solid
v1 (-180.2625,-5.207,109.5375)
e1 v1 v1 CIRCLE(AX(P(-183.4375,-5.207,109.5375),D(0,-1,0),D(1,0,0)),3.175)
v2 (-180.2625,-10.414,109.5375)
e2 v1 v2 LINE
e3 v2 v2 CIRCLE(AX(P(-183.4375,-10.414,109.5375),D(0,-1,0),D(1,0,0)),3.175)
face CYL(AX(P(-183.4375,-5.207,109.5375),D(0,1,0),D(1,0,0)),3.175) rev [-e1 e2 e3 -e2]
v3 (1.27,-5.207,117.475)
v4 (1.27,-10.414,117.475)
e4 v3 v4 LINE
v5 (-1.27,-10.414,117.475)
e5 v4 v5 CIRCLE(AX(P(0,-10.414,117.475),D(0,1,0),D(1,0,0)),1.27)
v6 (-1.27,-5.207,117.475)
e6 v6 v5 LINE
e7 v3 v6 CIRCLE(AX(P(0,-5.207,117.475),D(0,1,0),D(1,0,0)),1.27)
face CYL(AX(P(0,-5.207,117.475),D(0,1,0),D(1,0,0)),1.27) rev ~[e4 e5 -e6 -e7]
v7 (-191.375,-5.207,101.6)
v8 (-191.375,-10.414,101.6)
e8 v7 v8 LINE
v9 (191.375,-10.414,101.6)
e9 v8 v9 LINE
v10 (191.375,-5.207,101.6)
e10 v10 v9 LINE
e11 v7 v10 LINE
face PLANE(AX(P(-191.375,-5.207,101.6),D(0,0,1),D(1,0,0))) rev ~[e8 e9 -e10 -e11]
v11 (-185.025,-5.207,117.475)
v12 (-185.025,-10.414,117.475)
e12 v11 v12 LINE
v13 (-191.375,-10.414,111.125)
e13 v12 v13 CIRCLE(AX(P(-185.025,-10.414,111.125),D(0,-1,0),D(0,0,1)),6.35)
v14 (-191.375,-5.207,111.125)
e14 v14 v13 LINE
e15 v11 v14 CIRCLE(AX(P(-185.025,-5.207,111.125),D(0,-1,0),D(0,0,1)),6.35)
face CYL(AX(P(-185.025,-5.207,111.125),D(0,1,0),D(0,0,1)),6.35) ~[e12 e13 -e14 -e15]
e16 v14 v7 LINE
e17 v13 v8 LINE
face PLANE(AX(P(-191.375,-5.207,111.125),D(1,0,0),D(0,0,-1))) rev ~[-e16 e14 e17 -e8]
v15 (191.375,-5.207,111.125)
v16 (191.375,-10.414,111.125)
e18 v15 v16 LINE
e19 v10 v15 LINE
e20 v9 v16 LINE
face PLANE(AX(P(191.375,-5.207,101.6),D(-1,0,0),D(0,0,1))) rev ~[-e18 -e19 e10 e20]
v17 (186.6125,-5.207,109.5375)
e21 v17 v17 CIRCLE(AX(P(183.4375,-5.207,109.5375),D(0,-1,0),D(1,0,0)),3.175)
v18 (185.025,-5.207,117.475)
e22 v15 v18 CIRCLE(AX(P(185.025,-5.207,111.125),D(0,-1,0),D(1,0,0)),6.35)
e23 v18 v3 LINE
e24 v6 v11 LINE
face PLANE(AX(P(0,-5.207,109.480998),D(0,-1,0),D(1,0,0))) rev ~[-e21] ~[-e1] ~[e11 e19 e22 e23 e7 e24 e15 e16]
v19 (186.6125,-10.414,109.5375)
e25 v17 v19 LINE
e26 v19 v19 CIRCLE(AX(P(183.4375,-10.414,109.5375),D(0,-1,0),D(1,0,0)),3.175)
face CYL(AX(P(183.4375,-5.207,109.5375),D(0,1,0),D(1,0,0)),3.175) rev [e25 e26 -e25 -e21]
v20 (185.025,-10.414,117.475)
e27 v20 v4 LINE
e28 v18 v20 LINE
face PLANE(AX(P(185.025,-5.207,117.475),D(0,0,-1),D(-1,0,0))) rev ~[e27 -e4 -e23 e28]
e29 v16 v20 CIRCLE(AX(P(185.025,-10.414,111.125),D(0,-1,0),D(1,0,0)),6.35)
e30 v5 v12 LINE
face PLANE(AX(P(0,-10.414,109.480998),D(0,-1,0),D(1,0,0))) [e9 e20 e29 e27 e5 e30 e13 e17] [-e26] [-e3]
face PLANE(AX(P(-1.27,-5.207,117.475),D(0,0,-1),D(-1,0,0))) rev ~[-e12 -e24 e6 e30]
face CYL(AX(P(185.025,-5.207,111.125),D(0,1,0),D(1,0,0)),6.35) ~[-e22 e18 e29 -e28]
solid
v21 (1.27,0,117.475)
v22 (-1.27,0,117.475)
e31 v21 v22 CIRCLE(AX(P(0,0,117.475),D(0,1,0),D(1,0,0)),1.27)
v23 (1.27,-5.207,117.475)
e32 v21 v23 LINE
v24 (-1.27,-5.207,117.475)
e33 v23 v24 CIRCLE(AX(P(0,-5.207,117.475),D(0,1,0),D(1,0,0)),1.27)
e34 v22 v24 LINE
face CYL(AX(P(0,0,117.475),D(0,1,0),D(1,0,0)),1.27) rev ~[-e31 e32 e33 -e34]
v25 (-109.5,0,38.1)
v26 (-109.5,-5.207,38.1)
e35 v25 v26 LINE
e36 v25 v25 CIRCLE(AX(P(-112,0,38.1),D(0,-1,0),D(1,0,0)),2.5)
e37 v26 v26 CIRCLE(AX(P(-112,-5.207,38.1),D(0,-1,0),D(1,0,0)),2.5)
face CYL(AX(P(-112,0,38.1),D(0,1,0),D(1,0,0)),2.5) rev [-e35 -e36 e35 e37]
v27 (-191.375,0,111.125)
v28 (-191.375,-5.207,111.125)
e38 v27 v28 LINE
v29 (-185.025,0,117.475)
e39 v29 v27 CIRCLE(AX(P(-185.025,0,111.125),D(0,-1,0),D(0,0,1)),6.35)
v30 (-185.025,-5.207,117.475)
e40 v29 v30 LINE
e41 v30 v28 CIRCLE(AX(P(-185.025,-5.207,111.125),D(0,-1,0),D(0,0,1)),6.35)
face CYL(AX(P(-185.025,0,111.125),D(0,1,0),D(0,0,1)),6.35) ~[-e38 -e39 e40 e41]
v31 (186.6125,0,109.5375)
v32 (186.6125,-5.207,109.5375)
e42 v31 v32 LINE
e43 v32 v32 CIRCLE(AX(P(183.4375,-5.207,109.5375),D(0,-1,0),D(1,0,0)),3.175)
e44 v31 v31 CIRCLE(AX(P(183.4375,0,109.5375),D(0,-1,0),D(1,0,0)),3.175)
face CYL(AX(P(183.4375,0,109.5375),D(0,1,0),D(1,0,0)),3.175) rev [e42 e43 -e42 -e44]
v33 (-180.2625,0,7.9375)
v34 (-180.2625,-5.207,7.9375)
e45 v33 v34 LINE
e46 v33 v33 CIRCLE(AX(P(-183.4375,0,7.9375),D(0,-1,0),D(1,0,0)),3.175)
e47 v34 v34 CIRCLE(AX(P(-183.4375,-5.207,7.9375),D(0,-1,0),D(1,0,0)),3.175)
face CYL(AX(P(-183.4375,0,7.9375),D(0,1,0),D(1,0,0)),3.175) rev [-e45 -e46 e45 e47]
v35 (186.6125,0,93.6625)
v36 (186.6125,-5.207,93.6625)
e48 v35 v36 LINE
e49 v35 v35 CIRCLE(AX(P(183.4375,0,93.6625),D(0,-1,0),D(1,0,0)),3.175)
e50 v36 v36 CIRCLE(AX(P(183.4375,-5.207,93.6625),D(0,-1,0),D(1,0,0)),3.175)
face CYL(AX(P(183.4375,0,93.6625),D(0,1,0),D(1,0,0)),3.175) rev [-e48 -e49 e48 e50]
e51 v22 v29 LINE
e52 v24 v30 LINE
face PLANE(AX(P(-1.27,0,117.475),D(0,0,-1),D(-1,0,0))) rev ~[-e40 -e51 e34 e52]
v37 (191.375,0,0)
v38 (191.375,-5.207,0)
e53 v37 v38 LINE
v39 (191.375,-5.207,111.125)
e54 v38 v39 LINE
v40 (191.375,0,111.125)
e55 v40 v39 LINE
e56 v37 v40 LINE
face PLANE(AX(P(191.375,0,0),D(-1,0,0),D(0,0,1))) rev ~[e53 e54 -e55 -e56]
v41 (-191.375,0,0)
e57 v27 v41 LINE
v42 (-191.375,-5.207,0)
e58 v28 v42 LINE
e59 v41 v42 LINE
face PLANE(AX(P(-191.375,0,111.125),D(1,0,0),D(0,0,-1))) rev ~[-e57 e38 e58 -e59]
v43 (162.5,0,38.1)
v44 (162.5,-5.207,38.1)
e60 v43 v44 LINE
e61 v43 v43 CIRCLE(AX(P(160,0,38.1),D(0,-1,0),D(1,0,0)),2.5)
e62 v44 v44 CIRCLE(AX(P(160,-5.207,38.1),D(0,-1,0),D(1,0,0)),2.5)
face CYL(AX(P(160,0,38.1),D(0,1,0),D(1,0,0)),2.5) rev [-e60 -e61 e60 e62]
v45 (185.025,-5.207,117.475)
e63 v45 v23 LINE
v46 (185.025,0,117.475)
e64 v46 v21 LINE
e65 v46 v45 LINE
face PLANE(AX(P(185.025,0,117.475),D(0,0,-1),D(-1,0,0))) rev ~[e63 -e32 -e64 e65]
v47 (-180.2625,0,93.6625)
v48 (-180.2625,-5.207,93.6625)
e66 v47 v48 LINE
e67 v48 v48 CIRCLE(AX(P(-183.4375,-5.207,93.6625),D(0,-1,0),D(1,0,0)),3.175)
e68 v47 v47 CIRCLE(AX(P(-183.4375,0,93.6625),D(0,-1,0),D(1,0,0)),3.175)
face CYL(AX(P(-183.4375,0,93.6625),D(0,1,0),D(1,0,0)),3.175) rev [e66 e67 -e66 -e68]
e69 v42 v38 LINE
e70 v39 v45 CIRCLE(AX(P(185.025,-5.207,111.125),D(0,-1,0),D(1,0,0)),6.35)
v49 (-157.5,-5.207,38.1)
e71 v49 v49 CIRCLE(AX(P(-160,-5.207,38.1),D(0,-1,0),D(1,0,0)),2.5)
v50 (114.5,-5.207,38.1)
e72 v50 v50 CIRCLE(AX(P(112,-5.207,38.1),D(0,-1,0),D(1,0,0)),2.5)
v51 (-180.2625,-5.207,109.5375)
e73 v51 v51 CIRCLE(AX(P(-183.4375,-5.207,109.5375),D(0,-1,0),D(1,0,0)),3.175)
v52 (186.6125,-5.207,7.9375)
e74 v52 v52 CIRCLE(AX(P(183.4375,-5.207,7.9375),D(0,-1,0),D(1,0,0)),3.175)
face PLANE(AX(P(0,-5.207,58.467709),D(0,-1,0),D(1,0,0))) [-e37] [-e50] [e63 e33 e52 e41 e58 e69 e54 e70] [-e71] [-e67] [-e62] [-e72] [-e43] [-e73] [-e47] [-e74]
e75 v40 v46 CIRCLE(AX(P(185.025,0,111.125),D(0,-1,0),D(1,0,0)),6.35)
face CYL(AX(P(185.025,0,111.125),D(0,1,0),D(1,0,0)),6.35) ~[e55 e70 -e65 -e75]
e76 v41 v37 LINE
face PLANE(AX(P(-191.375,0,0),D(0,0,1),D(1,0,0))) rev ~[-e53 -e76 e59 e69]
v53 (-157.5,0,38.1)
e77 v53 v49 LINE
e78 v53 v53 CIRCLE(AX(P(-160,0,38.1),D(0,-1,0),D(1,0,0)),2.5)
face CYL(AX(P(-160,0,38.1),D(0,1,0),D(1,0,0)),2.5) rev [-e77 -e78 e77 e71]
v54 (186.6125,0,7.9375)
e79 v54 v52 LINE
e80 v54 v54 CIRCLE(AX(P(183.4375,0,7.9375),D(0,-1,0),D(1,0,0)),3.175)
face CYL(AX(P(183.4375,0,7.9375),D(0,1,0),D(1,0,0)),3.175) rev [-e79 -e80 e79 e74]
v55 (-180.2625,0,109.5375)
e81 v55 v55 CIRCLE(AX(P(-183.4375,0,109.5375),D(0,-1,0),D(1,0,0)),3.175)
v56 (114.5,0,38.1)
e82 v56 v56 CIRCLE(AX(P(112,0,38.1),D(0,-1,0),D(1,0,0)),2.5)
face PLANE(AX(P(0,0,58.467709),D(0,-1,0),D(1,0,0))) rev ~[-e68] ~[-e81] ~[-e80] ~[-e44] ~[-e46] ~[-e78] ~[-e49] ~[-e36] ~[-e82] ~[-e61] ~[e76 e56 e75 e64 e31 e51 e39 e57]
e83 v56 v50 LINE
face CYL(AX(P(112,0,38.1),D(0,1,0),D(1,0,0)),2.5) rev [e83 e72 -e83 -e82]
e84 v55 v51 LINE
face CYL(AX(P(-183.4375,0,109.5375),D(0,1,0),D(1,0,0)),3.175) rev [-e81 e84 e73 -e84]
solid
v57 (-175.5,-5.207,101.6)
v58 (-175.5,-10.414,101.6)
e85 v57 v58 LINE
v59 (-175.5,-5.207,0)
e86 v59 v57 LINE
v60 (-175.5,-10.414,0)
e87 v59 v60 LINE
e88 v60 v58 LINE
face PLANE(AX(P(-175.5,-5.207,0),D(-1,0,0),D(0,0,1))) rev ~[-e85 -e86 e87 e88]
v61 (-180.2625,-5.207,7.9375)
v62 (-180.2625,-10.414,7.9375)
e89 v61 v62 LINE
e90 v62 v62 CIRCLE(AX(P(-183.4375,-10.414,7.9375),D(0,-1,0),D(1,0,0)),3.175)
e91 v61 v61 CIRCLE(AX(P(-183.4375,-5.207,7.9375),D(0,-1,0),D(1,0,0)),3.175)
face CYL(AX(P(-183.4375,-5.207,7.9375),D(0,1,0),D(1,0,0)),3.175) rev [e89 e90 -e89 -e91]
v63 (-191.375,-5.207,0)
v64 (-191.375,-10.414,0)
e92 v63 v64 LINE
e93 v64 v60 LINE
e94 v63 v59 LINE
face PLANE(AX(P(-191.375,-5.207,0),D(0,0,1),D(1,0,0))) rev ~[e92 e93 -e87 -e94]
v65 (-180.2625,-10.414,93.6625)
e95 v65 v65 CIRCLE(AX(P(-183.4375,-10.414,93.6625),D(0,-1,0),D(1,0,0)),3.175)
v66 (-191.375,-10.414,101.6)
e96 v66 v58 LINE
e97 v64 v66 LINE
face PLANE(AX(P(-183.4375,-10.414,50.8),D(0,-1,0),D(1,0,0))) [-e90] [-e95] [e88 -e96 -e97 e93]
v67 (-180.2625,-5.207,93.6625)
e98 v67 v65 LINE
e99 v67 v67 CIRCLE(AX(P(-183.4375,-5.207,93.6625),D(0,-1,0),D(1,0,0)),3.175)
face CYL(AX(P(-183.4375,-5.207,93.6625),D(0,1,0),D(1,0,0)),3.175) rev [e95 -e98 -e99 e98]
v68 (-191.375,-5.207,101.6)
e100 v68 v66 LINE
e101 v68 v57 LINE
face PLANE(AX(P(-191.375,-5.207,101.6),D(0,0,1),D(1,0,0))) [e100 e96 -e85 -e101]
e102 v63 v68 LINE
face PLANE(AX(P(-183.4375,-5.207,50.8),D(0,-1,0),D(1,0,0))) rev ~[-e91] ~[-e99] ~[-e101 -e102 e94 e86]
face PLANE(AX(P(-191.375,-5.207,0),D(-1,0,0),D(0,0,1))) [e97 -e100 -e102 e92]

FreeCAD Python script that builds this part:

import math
import FreeCAD as App
import Part
import Sketcher
Q = App.Units.Quantity

doc = App.newDocument("Part")
body = doc.addObject("PartDesign::Body", "Body")

# Sketch on XZ plane
sketch1 = body.newObject("Sketcher::SketchObject", "Sketch")
sketch1.AttachmentSupport = (doc.getObject("XZ_Plane"), [""])
sketch1.MapMode = "FlatFace"
sketch1.addGeometry([
    Part.LineSegment(App.Vector(-1.3, 117.5, 0), App.Vector(-185, 117.5, 0)),  # 0
    Part.ArcOfCircle(Part.Circle(App.Vector(-185, 111.1, 0), App.Vector(0, 0, 1), 6.3), math.radians(90), math.radians(180)),  # 1
    Part.LineSegment(App.Vector(-191.4, 111.1, 0), App.Vector(-191.4, 0, 0)),  # 2
    Part.LineSegment(App.Vector(-191.4, 0, 0), App.Vector(191.4, 0, 0)),  # 3
    Part.LineSegment(App.Vector(191.4, 0, 0), App.Vector(191.4, 111.1, 0)),  # 4
    Part.ArcOfCircle(Part.Circle(App.Vector(185, 111.1, 0), App.Vector(0, 0, 1), 6.3), math.radians(0), math.radians(90)),  # 5
    Part.LineSegment(App.Vector(185, 117.5, 0), App.Vector(1.3, 117.5, 0)),  # 6
    Part.ArcOfCircle(Part.Circle(App.Vector(0, 117.5, 0), App.Vector(0, 0, 1), 1.3), math.radians(180), math.radians(360)),  # 7
    Part.Circle(App.Vector(-183.4, 7.9, 0), App.Vector(0, 0, 1), 3.2),  # 8
    Part.Circle(App.Vector(-160, 38.1, 0), App.Vector(0, 0, 1), 2.5),  # 9
    Part.Circle(App.Vector(-112, 38.1, 0), App.Vector(0, 0, 1), 2.5),  # 10
    Part.Circle(App.Vector(183.4, 7.9, 0), App.Vector(0, 0, 1), 3.2),  # 11
    Part.Circle(App.Vector(112, 38.1, 0), App.Vector(0, 0, 1), 2.5),  # 12
    Part.Circle(App.Vector(160, 38.1, 0), App.Vector(0, 0, 1), 2.5),  # 13
    Part.Circle(App.Vector(-183.4, 93.7, 0), App.Vector(0, 0, 1), 3.2),  # 14
    Part.Circle(App.Vector(-183.4, 109.5, 0), App.Vector(0, 0, 1), 3.2),  # 15
    Part.Circle(App.Vector(183.4, 93.7, 0), App.Vector(0, 0, 1), 3.2),  # 16
    Part.Circle(App.Vector(183.4, 109.5, 0), App.Vector(0, 0, 1), 3.2),  # 17
], False)
sketch1.addConstraint([
    Sketcher.Constraint("Tangent", 0, 2, 1, 1),
    Sketcher.Constraint("Tangent", 1, 2, 2, 1),
    Sketcher.Constraint("Coincident", 2, 2, 3, 1),
    Sketcher.Constraint("Coincident", 3, 2, 4, 1),
    Sketcher.Constraint("Tangent", 4, 2, 5, 1),
    Sketcher.Constraint("Tangent", 5, 2, 6, 1),
    Sketcher.Constraint("Coincident", 6, 2, 7, 2),
    Sketcher.Constraint("Coincident", 7, 1, 0, 1),
    Sketcher.Constraint("Horizontal", 0),
    Sketcher.Constraint("Vertical", 2),
    Sketcher.Constraint("Horizontal", 3),
    Sketcher.Constraint("Vertical", 4),
    Sketcher.Constraint("Horizontal", 6),
    Sketcher.Constraint("Equal", 1, 5),
    Sketcher.Constraint("Equal", 9, 10),
    Sketcher.Constraint("Equal", 8, 11),
    Sketcher.Constraint("Equal", 10, 12),
    Sketcher.Constraint("Equal", 12, 13),
    Sketcher.Constraint("Equal", 11, 14),
    Sketcher.Constraint("Equal", 14, 15),
    Sketcher.Constraint("Equal", 15, 16),
    Sketcher.Constraint("Equal", 16, 17),
    Sketcher.Constraint("Symmetric", 2, 2, 3, 2, -1, 1),
    Sketcher.Constraint("Symmetric", 8, 3, 11, 3, -2),
    Sketcher.Constraint("Symmetric", 10, 3, 12, 3, -2),
    Sketcher.Constraint("Symmetric", 9, 3, 13, 3, -2),
    Sketcher.Constraint("Symmetric", 14, 3, 16, 3, -2),
    Sketcher.Constraint("Symmetric", 15, 3, 17, 3, -2),
    Sketcher.Constraint("Symmetric", 6, 2, 7, 1, -2),
    Sketcher.Constraint("Horizontal", 9, 3, 10, 3),
    Sketcher.Constraint("Horizontal", 7, 3, 0, 2),
    Sketcher.Constraint("Vertical", 8, 3, 14, 3),
    Sketcher.Constraint("Vertical", 14, 3, 15, 3),
    Sketcher.Constraint("Diameter", 8, Q("0.25 in")),
    Sketcher.Constraint("Radius", 1, Q("0.25 in")),
    Sketcher.Constraint("Radius", 7, Q("0.05 in")),
    Sketcher.Constraint("DistanceY", 8, 3, 15, 3, Q("4 in")),
    Sketcher.Constraint("DistanceY", -1, 1, 9, 3, Q("1.5 in")),
    Sketcher.Constraint("Diameter", 9, 5.0),
    Sketcher.Constraint("DistanceY", 2, 2, 2, 1, Q("4.375 in")),
    Sketcher.Constraint("DistanceY", -1, 1, 8, 3, Q("0.3125 in")),
    Sketcher.Constraint("DistanceY", -1, 1, 14, 3, Q("3.6875 in")),
    Sketcher.Constraint("DistanceX", 1, 3, 8, 3, Q("0.0625 in")),
    Sketcher.Constraint("DistanceX", 8, 3, 10, 3, Q("2.8125 in")),
    Sketcher.Constraint("DistanceX", 0, 2, 0, 1, 183.755),
    Sketcher.Constraint("DistanceX", 9, 3, -1, 1, 160.0),
])
pad1 = body.newObject("PartDesign::Pad", "Pad")
pad1.Profile = sketch1
pad1.Length = Q("0.205 in")
body2 = doc.addObject("PartDesign::Body", "Body001")

# Sketch on XZ plane
sketch2 = body2.newObject("Sketcher::SketchObject", "Sketch001")
sketch2.AttachmentSupport = (doc.getObject("XZ_Plane001"), [""])
sketch2.MapMode = "FlatFace"
sketch2.AttachmentOffset = App.Placement(App.Vector(0, 0, 0.205 * 25.4), App.Rotation())
sketch2.addGeometry([
    Part.LineSegment(App.Vector(185, 117.5, 0), App.Vector(1.3, 117.5, 0)),  # 0
    Part.ArcOfCircle(Part.Circle(App.Vector(0, 117.5, 0), App.Vector(0, 0, 1), 1.3), math.radians(180), math.radians(360)),  # 1
    Part.LineSegment(App.Vector(-1.3, 117.5, 0), App.Vector(-185, 117.5, 0)),  # 2
    Part.ArcOfCircle(Part.Circle(App.Vector(-185, 111.1, 0), App.Vector(0, 0, 1), 6.3), math.radians(90), math.radians(180)),  # 3
    Part.LineSegment(App.Vector(-191.4, 111.1, 0), App.Vector(-191.4, 101.6, 0)),  # 4
    Part.LineSegment(App.Vector(-191.4, 101.6, 0), App.Vector(191.4, 101.6, 0)),  # 5
    Part.LineSegment(App.Vector(191.4, 101.6, 0), App.Vector(191.4, 111.1, 0)),  # 6
    Part.ArcOfCircle(Part.Circle(App.Vector(185, 111.1, 0), App.Vector(0, 0, 1), 6.3), math.radians(0), math.radians(90)),  # 7
    Part.Circle(App.Vector(-183.4, 109.5, 0), App.Vector(0, 0, 1), 3.2),  # 8
    Part.Circle(App.Vector(183.4, 109.5, 0), App.Vector(0, 0, 1), 3.2),  # 9
], False)
sketch2.addConstraint([
    Sketcher.Constraint("Coincident", 0, 2, 1, 2),
    Sketcher.Constraint("Coincident", 1, 1, 2, 1),
    Sketcher.Constraint("Tangent", 2, 2, 3, 1),
    Sketcher.Constraint("Tangent", 3, 2, 4, 1),
    Sketcher.Constraint("Coincident", 4, 2, 5, 1),
    Sketcher.Constraint("Coincident", 5, 2, 6, 1),
    Sketcher.Constraint("Tangent", 6, 2, 7, 1),
    Sketcher.Constraint("Tangent", 7, 2, 0, 1),
    Sketcher.Constraint("Horizontal", 0),
    Sketcher.Constraint("Horizontal", 2),
    Sketcher.Constraint("Vertical", 4),
    Sketcher.Constraint("Horizontal", 5),
    Sketcher.Constraint("Vertical", 6),
    Sketcher.Constraint("Equal", 3, 7),
    Sketcher.Constraint("Equal", 8, 9),
    Sketcher.Constraint("Symmetric", 3, 3, 7, 3, -2),
    Sketcher.Constraint("Symmetric", 8, 3, 9, 3, -2),
    Sketcher.Constraint("PointOnObject", 1, 3, -2),
    Sketcher.Constraint("Horizontal", 1, 3, 0, 2),
    Sketcher.Constraint("Diameter", 8, Q("0.25 in")),
    Sketcher.Constraint("Radius", 1, Q("0.05 in")),
    Sketcher.Constraint("Radius", 3, Q("0.25 in")),
    Sketcher.Constraint("DistanceY", -1, 1, 4, 2, Q("4 in")),
    Sketcher.Constraint("DistanceY", 4, 2, 4, 1, Q("0.375 in")),
    Sketcher.Constraint("DistanceY", -1, 1, 8, 3, Q("4.3125 in")),
    Sketcher.Constraint("DistanceX", 3, 3, 8, 3, Q("0.0625 in")),
    Sketcher.Constraint("DistanceX", 0, 2, 0, 1, 183.755),
])
pad2 = body2.newObject("PartDesign::Pad", "Pad001")
pad2.Profile = sketch2
pad2.Length = Q("0.205 in")
body3 = doc.addObject("PartDesign::Body", "Body002")

# Sketch on XZ plane
sketch3 = body3.newObject("Sketcher::SketchObject", "Sketch002")
sketch3.AttachmentSupport = (doc.getObject("XZ_Plane002"), [""])
sketch3.MapMode = "FlatFace"
sketch3.AttachmentOffset = App.Placement(App.Vector(0, 0, 0.205 * 25.4), App.Rotation())
sketch3.addGeometry([
    Part.LineSegment(App.Vector(-191.4, 101.6, 0), App.Vector(-191.4, 0, 0)),  # 0
    Part.LineSegment(App.Vector(-191.4, 0, 0), App.Vector(-175.5, 0, 0)),  # 1
    Part.LineSegment(App.Vector(-175.5, 0, 0), App.Vector(-175.5, 101.6, 0)),  # 2
    Part.LineSegment(App.Vector(-175.5, 101.6, 0), App.Vector(-191.4, 101.6, 0)),  # 3
    Part.Circle(App.Vector(-183.4, 7.9, 0), App.Vector(0, 0, 1), 3.2),  # 4
    Part.Circle(App.Vector(-183.4, 93.7, 0), App.Vector(0, 0, 1), 3.2),  # 5
], False)
sketch3.addConstraint([
    Sketcher.Constraint("Coincident", 0, 2, 1, 1),
    Sketcher.Constraint("Coincident", 1, 2, 2, 1),
    Sketcher.Constraint("Coincident", 2, 2, 3, 1),
    Sketcher.Constraint("Coincident", 3, 2, 0, 1),
    Sketcher.Constraint("Vertical", 0),
    Sketcher.Constraint("Horizontal", 1),
    Sketcher.Constraint("Vertical", 2),
    Sketcher.Constraint("Horizontal", 3),
    Sketcher.Constraint("Equal", 4, 5),
    Sketcher.Constraint("PointOnObject", 0, 2, -1),
    Sketcher.Constraint("Vertical", 4, 3, 5, 3),
    Sketcher.Constraint("Diameter", 4, Q("0.25 in")),
    Sketcher.Constraint("DistanceY", 0, 2, 0, 1, Q("4 in")),
    Sketcher.Constraint("DistanceX", 1, 1, 1, 2, Q("0.625 in")),
    Sketcher.Constraint("DistanceY", -1, 1, 4, 3, Q("0.3125 in")),
    Sketcher.Constraint("DistanceY", -1, 1, 5, 3, Q("3.6875 in")),
    Sketcher.Constraint("DistanceX", 0, 2, 4, 3, Q("0.3125 in")),
    Sketcher.Constraint("DistanceX", 4, 3, -1, 1, 183.4375),
])
pad3 = body3.newObject("PartDesign::Pad", "Pad002")
pad3.Profile = sketch3
pad3.Length = Q("0.205 in")

doc.recompute()
